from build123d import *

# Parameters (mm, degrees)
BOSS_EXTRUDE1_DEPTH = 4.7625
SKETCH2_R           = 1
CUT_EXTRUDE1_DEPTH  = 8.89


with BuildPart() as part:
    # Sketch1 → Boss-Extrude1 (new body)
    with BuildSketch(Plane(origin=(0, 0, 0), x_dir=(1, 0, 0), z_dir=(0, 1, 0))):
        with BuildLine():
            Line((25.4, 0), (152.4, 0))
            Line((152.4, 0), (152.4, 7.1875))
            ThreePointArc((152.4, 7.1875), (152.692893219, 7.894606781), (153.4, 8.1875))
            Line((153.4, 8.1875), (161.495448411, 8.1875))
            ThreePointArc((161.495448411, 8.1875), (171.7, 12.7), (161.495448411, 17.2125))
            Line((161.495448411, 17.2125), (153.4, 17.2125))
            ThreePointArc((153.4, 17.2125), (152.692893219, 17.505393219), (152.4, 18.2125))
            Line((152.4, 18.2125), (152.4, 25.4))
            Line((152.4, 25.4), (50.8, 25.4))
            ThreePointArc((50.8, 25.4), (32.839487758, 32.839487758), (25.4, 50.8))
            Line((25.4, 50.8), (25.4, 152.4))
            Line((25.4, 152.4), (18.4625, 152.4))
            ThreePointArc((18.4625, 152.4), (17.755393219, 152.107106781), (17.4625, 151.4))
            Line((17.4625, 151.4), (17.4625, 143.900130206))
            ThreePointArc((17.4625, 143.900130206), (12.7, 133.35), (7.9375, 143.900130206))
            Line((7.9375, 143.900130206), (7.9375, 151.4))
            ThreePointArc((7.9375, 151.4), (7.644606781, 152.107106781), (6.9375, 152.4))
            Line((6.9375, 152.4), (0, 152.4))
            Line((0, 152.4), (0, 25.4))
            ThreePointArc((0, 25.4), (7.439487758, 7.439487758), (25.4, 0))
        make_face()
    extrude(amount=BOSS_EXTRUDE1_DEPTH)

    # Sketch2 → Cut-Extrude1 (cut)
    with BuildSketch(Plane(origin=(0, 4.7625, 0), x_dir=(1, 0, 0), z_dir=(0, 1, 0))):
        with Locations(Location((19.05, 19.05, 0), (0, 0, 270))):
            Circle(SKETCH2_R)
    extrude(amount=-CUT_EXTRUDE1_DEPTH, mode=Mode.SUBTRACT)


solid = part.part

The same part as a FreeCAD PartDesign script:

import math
import FreeCAD as App
import Part
import Sketcher
from FreeCAD import Vector
Q = App.Units.Quantity

doc = App.newDocument("Part")
params = doc.addObject("Spreadsheet::Sheet", "Params")
for row, (alias, value) in enumerate([
    ("sketch1_radius", "1 in"),
    ("sketch1_width", "5 in"),
    ("sketch1_radius2", "0.25 in"),
    ("pad1_length", "0.1875 in"),
    ("pocket1_length", "0.35 in"),
], start=1):
    params.set(f"A{row}", alias)
    params.set(f"B{row}", "=" + value)
    params.setAlias(f"B{row}", alias)

body = doc.addObject("PartDesign::Body", "Body")

# Sketch on XZ plane
sketch1 = body.newObject("Sketcher::SketchObject", "Sketch")
sketch1.AttachmentSupport = (doc.getObject("XZ_Plane"), [""])
sketch1.MapMode = "FlatFace"
sketch1.addGeometry([
    Part.LineSegment(Vector(25.4, 0, 0), Vector(152.4, 0, 0)),  # 0
    Part.LineSegment(Vector(152.4, 0, 0), Vector(152.4, -7.1875, 0)),  # 1
    Part.ArcOfCircle(Part.Circle(Vector(153.4, -7.1875, 0), Vector(0, 0, 1), 1), math.radians(-180), math.radians(-90)),  # 2
    Part.LineSegment(Vector(153.4, -8.1875, 0), Vector(161.495448, -8.1875, 0)),  # 3
    Part.ArcOfCircle(Part.Circle(Vector(165.6, -12.7, 0), Vector(0, 0, 1), 6.1), math.radians(-132.289527), math.radians(132.289527)),  # 4
    Part.LineSegment(Vector(161.495448, -17.2125, 0), Vector(153.4, -17.2125, 0)),  # 5
    Part.ArcOfCircle(Part.Circle(Vector(153.4, -18.2125, 0), Vector(0, 0, 1), 1), math.radians(90), math.radians(180)),  # 6
    Part.LineSegment(Vector(152.4, -18.2125, 0), Vector(152.4, -25.4, 0)),  # 7
    Part.LineSegment(Vector(152.4, -25.4, 0), Vector(50.8, -25.4, 0)),  # 8
    Part.ArcOfCircle(Part.Circle(Vector(50.8, -50.8, 0), Vector(0, 0, 1), 25.4), math.radians(90), math.radians(180)),  # 9
    Part.LineSegment(Vector(25.4, -50.8, 0), Vector(25.4, -152.4, 0)),  # 10
    Part.LineSegment(Vector(25.4, -152.4, 0), Vector(18.4625, -152.4, 0)),  # 11
    Part.ArcOfCircle(Part.Circle(Vector(18.4625, -151.4, 0), Vector(0, 0, 1), 1), math.radians(-180), math.radians(-90)),  # 12
    Part.LineSegment(Vector(17.4625, -151.4, 0), Vector(17.4625, -143.90013, 0)),  # 13
    Part.ArcOfCircle(Part.Circle(Vector(12.7, -139.7, 0), Vector(0, 0, 1), 6.35), math.radians(-41.409622), math.radians(221.409622)),  # 14
    Part.LineSegment(Vector(7.9375, -143.90013, 0), Vector(7.9375, -151.4, 0)),  # 15
    Part.ArcOfCircle(Part.Circle(Vector(6.9375, -151.4, 0), Vector(0, 0, 1), 1), math.radians(-90), math.radians(0)),  # 16
    Part.LineSegment(Vector(6.9375, -152.4, 0), Vector(0, -152.4, 0)),  # 17
    Part.LineSegment(Vector(0, -152.4, 0), Vector(0, -25.4, 0)),  # 18
    Part.ArcOfCircle(Part.Circle(Vector(25.4, -25.4, 0), Vector(0, 0, 1), 25.4), math.radians(90), math.radians(180)),  # 19
], False)
sketch1.addConstraint([
    Sketcher.Constraint("Coincident", 0, 2, 1, 1),
    Sketcher.Constraint("Tangent", 1, 2, 2, 1),
    Sketcher.Constraint("Tangent", 2, 2, 3, 1),
    Sketcher.Constraint("Coincident", 3, 2, 4, 2),
    Sketcher.Constraint("Coincident", 4, 1, 5, 1),
    Sketcher.Constraint("Tangent", 5, 2, 6, 1),
    Sketcher.Constraint("Tangent", 6, 2, 7, 1),
    Sketcher.Constraint("Coincident", 7, 2, 8, 1),
    Sketcher.Constraint("Tangent", 8, 2, 9, 1),
    Sketcher.Constraint("Tangent", 9, 2, 10, 1),
    Sketcher.Constraint("Coincident", 10, 2, 11, 1),
    Sketcher.Constraint("Tangent", 11, 2, 12, 2),
    Sketcher.Constraint("Tangent", 12, 1, 13, 1),
    Sketcher.Constraint("Coincident", 13, 2, 14, 1),
    Sketcher.Constraint("Coincident", 14, 2, 15, 1),
    Sketcher.Constraint("Tangent", 15, 2, 16, 2),
    Sketcher.Constraint("Tangent", 16, 1, 17, 1),
    Sketcher.Constraint("Coincident", 17, 2, 18, 1),
    Sketcher.Constraint("Tangent", 18, 2, 19, 2),
    Sketcher.Constraint("Tangent", 19, 1, 0, 1),
    Sketcher.Constraint("Horizontal", 0),
    Sketcher.Constraint("Vertical", 1),
    Sketcher.Constraint("Horizontal", 3),
    Sketcher.Constraint("Horizontal", 5),
    Sketcher.Constraint("Vertical", 7),
    Sketcher.Constraint("Horizontal", 8),
    Sketcher.Constraint("Vertical", 10),
    Sketcher.Constraint("Horizontal", 11),
    Sketcher.Constraint("Vertical", 13),
    Sketcher.Constraint("Vertical", 15),
    Sketcher.Constraint("Horizontal", 17),
    Sketcher.Constraint("Vertical", 18),
    Sketcher.Constraint("Equal", 2, 6),
    Sketcher.Constraint("Equal", 6, 12),
    Sketcher.Constraint("Equal", 12, 16),
    Sketcher.Constraint("Equal", 9, 19),
    Sketcher.Constraint("PointOnObject", 0, 2, -1),
    Sketcher.Constraint("PointOnObject", 17, 2, -2),
    Sketcher.Constraint("Horizontal", 12, 3, 16, 3),
    Sketcher.Constraint("Horizontal", 19, 3, 7, 2),
    Sketcher.Constraint("Horizontal", 13, 2, 14, 2),
    Sketcher.Constraint("Vertical", 2, 3, 6, 3),
    Sketcher.Constraint("Vertical", 3, 2, 4, 1),
    Sketcher.Constraint("Vertical", 19, 3, 9, 2),
    Sketcher.Constraint("Equal", 11, 17),
    Sketcher.Constraint("Equal", 1, 7),
    Sketcher.Constraint("Equal", 8, 10),
    Sketcher.Constraint("Radius", 9, Q("1 in")),
    Sketcher.Constraint("DistanceX", 0, 1, 0, 2, Q("5 in")),
    Sketcher.Constraint("Radius", 14, Q("0.25 in")),
    Sketcher.Constraint("DistanceY", 14, 3, 4, 3, Q("5 in")),
    Sketcher.Constraint("Radius", 2, 1.0),
    Sketcher.Constraint("Radius", 4, 6.1),
    Sketcher.Constraint("DistanceX", -1, 1, 12, 1, Q("0.6875 in")),
    Sketcher.Constraint("DistanceY", 1, 2, 1, 1, 7.1875),
    Sketcher.Constraint("DistanceX", 3, 1, 3, 2, 8.095448),
])
sketch1.setExpression("Constraints[47]", "Params.sketch1_radius")
sketch1.setExpression("Constraints[48]", "Params.sketch1_width")
sketch1.setExpression("Constraints[49]", "Params.sketch1_radius2")
pad1 = body.newObject("PartDesign::Pad", "Pad")
pad1.Profile = sketch1
pad1.setExpression("Length", "Params.pad1_length")
pad1.Reversed = True

# Sketch on XZ plane
sketch2 = body.newObject("Sketcher::SketchObject", "Sketch001")
sketch2.AttachmentSupport = (doc.getObject("XZ_Plane"), [""])
sketch2.MapMode = "FlatFace"
sketch2.AttachmentOffset = App.Placement(Vector(0, 0, -0.1875 * 25.4), App.Rotation())
sketch2.addGeometry(Part.Circle(Vector(19.05, -19.05, 0), Vector(0, 0, 1), 1), False)
sketch2.addConstraint([
    Sketcher.Constraint("Diameter", 0, 2.0),
    Sketcher.Constraint("DistanceX", -1, 1, 0, 3, Q("0.75 in")),
    Sketcher.Constraint("DistanceY", 0, 3, -1, 1, Q("0.75 in")),
])
pocket1 = body.newObject("PartDesign::Pocket", "Pocket")
pocket1.Profile = sketch2
pocket1.setExpression("Length", "Params.pocket1_length")
pocket1.Reversed = True

doc.recompute()
